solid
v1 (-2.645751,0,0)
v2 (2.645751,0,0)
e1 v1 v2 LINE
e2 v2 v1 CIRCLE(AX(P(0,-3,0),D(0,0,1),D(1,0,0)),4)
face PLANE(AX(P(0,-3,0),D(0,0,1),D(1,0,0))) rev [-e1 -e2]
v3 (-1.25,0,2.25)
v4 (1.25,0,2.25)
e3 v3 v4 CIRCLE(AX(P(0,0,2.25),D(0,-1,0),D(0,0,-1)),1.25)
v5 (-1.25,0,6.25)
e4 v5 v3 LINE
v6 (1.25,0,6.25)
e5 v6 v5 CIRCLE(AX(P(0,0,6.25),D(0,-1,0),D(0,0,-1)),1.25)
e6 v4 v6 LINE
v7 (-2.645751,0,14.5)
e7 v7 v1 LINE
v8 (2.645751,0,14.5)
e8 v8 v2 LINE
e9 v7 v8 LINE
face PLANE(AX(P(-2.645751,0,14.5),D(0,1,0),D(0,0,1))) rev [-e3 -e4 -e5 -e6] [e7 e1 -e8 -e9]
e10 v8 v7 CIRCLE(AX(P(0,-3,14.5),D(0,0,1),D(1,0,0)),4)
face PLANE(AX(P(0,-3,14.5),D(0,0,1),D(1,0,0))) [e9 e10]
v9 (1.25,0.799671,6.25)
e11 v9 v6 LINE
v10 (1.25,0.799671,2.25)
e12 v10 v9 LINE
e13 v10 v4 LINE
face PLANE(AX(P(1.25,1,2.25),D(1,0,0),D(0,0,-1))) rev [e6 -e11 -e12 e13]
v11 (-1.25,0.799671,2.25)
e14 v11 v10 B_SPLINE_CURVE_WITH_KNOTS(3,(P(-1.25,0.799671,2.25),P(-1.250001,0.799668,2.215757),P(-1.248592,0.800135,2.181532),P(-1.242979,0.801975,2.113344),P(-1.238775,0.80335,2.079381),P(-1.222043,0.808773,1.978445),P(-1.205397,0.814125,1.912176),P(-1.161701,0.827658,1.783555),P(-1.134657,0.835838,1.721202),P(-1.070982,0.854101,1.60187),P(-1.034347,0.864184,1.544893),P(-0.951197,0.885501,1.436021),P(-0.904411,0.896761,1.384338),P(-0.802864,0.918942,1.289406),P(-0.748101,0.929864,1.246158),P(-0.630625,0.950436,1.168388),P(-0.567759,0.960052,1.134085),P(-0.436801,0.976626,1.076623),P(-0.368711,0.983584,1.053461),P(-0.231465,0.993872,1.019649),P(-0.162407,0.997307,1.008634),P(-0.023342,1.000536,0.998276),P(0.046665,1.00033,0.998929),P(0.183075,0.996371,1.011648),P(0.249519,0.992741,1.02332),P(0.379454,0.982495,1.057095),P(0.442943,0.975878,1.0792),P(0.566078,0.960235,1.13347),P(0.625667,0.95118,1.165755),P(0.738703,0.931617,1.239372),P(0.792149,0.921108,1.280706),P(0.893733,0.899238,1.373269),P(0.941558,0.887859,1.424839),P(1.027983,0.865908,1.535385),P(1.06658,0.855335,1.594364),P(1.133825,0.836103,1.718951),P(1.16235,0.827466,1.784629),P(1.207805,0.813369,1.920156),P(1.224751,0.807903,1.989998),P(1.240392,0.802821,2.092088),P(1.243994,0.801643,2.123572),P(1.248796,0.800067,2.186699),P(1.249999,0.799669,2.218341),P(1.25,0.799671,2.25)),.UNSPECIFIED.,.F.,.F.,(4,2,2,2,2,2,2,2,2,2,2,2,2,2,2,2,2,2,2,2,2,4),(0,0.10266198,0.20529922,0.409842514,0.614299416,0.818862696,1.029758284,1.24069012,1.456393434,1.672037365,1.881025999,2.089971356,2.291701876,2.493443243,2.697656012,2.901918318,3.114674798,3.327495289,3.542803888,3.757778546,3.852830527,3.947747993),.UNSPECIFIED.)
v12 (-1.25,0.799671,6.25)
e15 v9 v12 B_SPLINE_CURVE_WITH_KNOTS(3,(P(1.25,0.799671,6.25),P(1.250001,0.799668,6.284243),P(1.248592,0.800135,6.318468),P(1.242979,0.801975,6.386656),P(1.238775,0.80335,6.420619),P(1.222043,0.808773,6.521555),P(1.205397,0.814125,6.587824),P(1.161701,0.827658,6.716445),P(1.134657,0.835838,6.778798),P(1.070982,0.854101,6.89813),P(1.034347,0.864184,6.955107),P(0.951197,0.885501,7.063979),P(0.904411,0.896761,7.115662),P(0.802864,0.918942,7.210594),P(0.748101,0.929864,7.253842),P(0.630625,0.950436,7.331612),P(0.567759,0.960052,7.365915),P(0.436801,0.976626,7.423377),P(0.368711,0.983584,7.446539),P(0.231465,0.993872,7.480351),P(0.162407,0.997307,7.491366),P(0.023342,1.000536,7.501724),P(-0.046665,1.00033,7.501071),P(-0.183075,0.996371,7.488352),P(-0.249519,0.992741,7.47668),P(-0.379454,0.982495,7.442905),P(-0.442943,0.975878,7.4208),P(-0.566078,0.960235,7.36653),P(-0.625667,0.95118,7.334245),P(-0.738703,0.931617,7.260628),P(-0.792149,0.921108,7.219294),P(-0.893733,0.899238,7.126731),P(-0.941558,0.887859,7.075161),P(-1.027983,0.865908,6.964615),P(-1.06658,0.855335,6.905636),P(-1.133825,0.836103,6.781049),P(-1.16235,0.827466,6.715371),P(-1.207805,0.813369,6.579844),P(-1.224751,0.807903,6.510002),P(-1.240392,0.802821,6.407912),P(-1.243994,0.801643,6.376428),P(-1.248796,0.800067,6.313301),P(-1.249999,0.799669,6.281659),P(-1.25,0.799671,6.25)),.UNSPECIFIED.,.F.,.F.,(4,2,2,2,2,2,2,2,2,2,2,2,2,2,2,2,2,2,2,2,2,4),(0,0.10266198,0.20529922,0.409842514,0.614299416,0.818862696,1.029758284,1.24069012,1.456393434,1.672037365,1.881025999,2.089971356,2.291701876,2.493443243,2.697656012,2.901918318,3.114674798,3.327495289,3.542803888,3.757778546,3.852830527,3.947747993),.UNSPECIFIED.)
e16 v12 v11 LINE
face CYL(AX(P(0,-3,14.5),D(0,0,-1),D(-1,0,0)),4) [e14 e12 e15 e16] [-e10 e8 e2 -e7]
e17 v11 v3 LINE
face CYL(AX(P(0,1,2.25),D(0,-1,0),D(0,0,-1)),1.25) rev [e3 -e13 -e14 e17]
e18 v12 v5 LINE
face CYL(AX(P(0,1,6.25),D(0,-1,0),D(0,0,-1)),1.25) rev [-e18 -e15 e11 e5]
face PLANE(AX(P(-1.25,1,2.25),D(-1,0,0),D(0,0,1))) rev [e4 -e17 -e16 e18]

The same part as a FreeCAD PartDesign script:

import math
import FreeCAD as App
import Part
import Sketcher
Q = App.Units.Quantity

doc = App.newDocument("Part")
body = doc.addObject("PartDesign::Body", "Body")

sketch1 = body.newObject("Sketcher::SketchObject", "Sketch")
sketch1.AttachmentSupport = (doc.getObject("XY_Plane"), [""])
sketch1.MapMode = "FlatFace"
sketch1.addGeometry(Part.LineSegment(App.Vector(-2.6, 0, 0), App.Vector(2.6, 0, 0)), False)
sketch1.addGeometry(Part.ArcOfCircle(Part.Circle(App.Vector(0, -3, 0), App.Vector(0, 0, 1), 4), math.radians(49), math.radians(131)), False)
sketch1.addConstraint(Sketcher.Constraint("Coincident", 0, 1, 1, 2))
sketch1.addConstraint(Sketcher.Constraint("Coincident", 1, 1, 0, 2))
sketch1.addConstraint(Sketcher.Constraint("Horizontal", 0))
sketch1.addConstraint(Sketcher.Constraint("Symmetric", 0, 1, 1, 1, -1, 1))
sketch1.addConstraint(Sketcher.Constraint("Radius", 1, Q("4 mm")))
sketch1.addConstraint(Sketcher.Constraint("DistanceY", 1, 3, -1, 1, Q("3 mm")))
pad1 = body.newObject("PartDesign::Pad", "Pad")
pad1.Profile = sketch1
pad1.Length = 14.5

sketch2 = body.newObject("Sketcher::SketchObject", "Sketch001")
sketch2.AttachmentSupport = (doc.getObject("XZ_Plane"), [""])
sketch2.MapMode = "FlatFace"
sketch2.addGeometry(Part.LineSegment(App.Vector(-1.2, 6.2, 0), App.Vector(-1.2, 2.2, 0)), False)
sketch2.addGeometry(Part.ArcOfCircle(Part.Circle(App.Vector(0, 2.2, 0), App.Vector(0, 0, 1), 1.2), math.radians(180), math.radians(360)), False)
sketch2.addGeometry(Part.LineSegment(App.Vector(1.2, 2.2, 0), App.Vector(1.2, 6.2, 0)), False)
sketch2.addGeometry(Part.ArcOfCircle(Part.Circle(App.Vector(0, 6.2, 0), App.Vector(0, 0, 1), 1.2), math.radians(0), math.radians(180)), False)
sketch2.addConstraint(Sketcher.Constraint("Tangent", 0, 2, 1, 1))
sketch2.addConstraint(Sketcher.Constraint("Tangent", 1, 2, 2, 1))
sketch2.addConstraint(Sketcher.Constraint("Tangent", 2, 2, 3, 1))
sketch2.addConstraint(Sketcher.Constraint("Tangent", 3, 2, 0, 1))
sketch2.addConstraint(Sketcher.Constraint("Vertical", 0))
sketch2.addConstraint(Sketcher.Constraint("Vertical", 2))
sketch2.addConstraint(Sketcher.Constraint("PointOnObject", 1, 3, -2))
sketch2.addConstraint(Sketcher.Constraint("DistanceY", 0, 2, 0, 1, Q("4 mm")))
sketch2.addConstraint(Sketcher.Constraint("Radius", 1, Q("1.25 mm")))
sketch2.addConstraint(Sketcher.Constraint("DistanceY", -1, 1, 1, 3, Q("2.25 mm")))
pocket1 = body.newObject("PartDesign::Pocket", "Pocket")
pocket1.Profile = sketch2
pocket1.Type = "ThroughAll"

doc.recompute()
